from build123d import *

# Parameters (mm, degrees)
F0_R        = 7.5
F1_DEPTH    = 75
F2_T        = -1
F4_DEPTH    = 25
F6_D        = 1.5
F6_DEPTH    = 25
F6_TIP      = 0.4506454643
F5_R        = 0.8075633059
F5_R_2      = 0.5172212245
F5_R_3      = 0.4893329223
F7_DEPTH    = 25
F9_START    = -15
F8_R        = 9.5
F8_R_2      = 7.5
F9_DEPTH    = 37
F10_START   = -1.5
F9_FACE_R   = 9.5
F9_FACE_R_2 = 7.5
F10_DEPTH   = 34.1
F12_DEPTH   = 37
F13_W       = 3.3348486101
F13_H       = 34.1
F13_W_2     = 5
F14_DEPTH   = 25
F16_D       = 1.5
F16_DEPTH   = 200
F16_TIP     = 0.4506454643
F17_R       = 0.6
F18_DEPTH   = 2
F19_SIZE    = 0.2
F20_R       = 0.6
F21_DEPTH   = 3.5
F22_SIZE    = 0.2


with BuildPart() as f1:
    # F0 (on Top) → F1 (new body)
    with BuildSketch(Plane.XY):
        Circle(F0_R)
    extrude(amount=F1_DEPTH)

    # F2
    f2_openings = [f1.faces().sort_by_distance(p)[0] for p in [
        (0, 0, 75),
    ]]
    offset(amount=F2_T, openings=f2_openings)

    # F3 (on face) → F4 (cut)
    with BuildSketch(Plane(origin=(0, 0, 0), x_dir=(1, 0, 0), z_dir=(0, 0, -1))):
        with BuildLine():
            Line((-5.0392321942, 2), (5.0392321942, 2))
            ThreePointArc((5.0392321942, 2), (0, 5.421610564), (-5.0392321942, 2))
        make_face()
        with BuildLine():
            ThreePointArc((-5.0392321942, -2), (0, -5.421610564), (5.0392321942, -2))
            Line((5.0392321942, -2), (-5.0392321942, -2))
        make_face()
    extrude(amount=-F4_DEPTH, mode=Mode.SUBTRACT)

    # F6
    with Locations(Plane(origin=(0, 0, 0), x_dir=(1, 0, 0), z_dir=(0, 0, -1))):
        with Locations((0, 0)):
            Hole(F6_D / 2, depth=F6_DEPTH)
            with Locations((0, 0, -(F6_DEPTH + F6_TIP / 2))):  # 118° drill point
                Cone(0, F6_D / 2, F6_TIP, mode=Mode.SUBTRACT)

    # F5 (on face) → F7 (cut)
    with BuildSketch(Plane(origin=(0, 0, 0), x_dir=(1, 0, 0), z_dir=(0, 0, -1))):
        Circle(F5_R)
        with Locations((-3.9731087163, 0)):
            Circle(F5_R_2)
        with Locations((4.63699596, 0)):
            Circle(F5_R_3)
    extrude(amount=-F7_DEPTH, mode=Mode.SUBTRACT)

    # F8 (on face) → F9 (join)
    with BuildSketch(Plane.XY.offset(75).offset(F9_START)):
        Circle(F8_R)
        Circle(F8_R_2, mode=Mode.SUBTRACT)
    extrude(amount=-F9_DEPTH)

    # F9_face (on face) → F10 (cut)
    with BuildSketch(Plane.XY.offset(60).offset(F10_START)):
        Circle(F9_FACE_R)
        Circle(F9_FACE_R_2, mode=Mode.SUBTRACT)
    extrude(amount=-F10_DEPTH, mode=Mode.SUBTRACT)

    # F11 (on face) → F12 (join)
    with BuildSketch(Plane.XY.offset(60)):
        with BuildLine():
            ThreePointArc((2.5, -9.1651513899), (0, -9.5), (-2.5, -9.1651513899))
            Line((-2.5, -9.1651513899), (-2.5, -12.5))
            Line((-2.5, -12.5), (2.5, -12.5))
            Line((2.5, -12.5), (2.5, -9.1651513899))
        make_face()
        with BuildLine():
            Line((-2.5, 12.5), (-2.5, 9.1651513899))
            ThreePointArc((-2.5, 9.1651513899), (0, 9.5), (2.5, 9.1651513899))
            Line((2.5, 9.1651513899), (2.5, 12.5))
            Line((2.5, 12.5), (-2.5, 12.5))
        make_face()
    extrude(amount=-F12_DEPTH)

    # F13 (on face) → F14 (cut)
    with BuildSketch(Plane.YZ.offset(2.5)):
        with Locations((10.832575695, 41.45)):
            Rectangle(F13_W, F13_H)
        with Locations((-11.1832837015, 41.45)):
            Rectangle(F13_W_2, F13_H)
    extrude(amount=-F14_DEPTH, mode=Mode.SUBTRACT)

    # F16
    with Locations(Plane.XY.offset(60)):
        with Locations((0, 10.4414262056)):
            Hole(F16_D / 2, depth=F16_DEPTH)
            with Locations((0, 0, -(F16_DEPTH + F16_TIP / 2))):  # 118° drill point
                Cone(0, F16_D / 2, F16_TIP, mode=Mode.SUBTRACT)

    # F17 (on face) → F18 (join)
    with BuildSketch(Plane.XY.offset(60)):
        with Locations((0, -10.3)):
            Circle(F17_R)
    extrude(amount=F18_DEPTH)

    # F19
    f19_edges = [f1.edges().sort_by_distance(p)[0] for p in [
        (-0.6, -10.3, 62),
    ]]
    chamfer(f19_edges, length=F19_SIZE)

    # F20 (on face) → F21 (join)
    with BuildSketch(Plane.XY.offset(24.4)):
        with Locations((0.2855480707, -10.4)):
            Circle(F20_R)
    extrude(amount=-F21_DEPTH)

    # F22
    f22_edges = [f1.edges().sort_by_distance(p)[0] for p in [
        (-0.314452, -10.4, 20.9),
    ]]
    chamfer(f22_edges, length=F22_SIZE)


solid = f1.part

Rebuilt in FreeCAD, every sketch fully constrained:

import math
import FreeCAD as App
import Part
import Sketcher
from FreeCAD import Vector
Q = App.Units.Quantity


def edges_at(feature, points):
    """Names of the edges that pass closest to the given points."""
    edges = feature.Shape.Edges
    near = lambda p: min(range(len(edges)), key=lambda i: edges[i].distToShape(Part.Vertex(*p))[0])
    return sorted({f"Edge{near(p) + 1}" for p in points})


def faces_at(feature, points):
    """Names of the faces that lie closest to the given points."""
    faces = feature.Shape.Faces
    near = lambda p: min(range(len(faces)), key=lambda i: faces[i].distToShape(Part.Vertex(*p))[0])
    return sorted({f"Face{near(p) + 1}" for p in points})

doc = App.newDocument("Part")
body = doc.addObject("PartDesign::Body", "Body")

# Sketch on XY plane
sketch1 = doc.addObject("Sketcher::SketchObject", "Sketch")
body.addObject(sketch1)
sketch1.AttachmentSupport = (doc.XY_Plane, [""])
sketch1.MapMode = "FlatFace"
sketch1.addGeometry(Part.Circle(Vector(0, 0, 0), Vector(0, 0, 1), 8), False)
sketch1.addConstraint(Sketcher.Constraint("Coincident", 0, 3, -1, 1))
sketch1.addConstraint(Sketcher.Constraint("Diameter", 0, Q("15 mm")))
pad1 = doc.addObject("PartDesign::Pad", "Pad")
body.addObject(pad1)
pad1.Profile = sketch1
pad1.Length = 75
doc.recompute()

thickness = doc.addObject("PartDesign::Thickness", "Thickness")
body.addObject(thickness)
thickness.Base = (pad1, faces_at(pad1, [(0, 0, 75)]))
thickness.Value = 1
thickness.Reversed = True
thickness.Join = "Arc"

# Sketch on XY plane
sketch2 = doc.addObject("Sketcher::SketchObject", "Sketch001")
body.addObject(sketch2)
sketch2.AttachmentSupport = (doc.XY_Plane, [""])
sketch2.MapMode = "FlatFace"
sketch2.addGeometry(Part.LineSegment(Vector(-5, -2, 0), Vector(5, -2, 0)), False)
sketch2.addGeometry(Part.ArcOfCircle(Part.Circle(Vector(0, 0, 0), Vector(0, 0, 1), 5), math.radians(-158), math.radians(-22)), False)
sketch2.addGeometry(Part.ArcOfCircle(Part.Circle(Vector(0, 0, 0), Vector(0, 0, 1), 5), math.radians(22), math.radians(158)), False)
sketch2.addGeometry(Part.LineSegment(Vector(5, 2, 0), Vector(-5, 2, 0)), False)
sketch2.addConstraint(Sketcher.Constraint("Coincident", 0, 1, 1, 1))
sketch2.addConstraint(Sketcher.Constraint("Coincident", 1, 2, 0, 2))
sketch2.addConstraint(Sketcher.Constraint("Coincident", 2, 1, 3, 1))
sketch2.addConstraint(Sketcher.Constraint("Coincident", 3, 2, 2, 2))
sketch2.addConstraint(Sketcher.Constraint("Horizontal", 0))
sketch2.addConstraint(Sketcher.Constraint("Horizontal", 3))
sketch2.addConstraint(Sketcher.Constraint("Coincident", 1, 3, -1, 1))
sketch2.addConstraint(Sketcher.Constraint("Coincident", 2, 3, -1, 1))
sketch2.addConstraint(Sketcher.Constraint("Equal", 1, 2))
sketch2.addConstraint(Sketcher.Constraint("Vertical", 1, 2, 2, 1))
sketch2.addConstraint(Sketcher.Constraint("DistanceY", 0, 1, -1, 1, Q("2 mm")))
sketch2.addConstraint(Sketcher.Constraint("Radius", 1, Q("5.421611 mm")))
pocket1 = doc.addObject("PartDesign::Pocket", "Pocket")
body.addObject(pocket1)
pocket1.Profile = sketch2
pocket1.Length = 25
pocket1.Reversed = True

# Sketch on XY plane
sketch3 = doc.addObject("Sketcher::SketchObject", "Sketch002")
body.addObject(sketch3)
sketch3.AttachmentSupport = (doc.XY_Plane, [""])
sketch3.MapMode = "FlatFace"
sketch3.addGeometry(Part.Circle(Vector(0, 0, 0), Vector(0, 0, 1), 0.8), False)
sketch3.addConstraint(Sketcher.Constraint("Coincident", 0, 3, -1, 1))
sketch3.addConstraint(Sketcher.Constraint("Diameter", 0, Q("1.5 mm")))
doc.recompute()
hole = doc.addObject("PartDesign::Hole", "Hole")
body.addObject(hole)
hole.Profile = sketch3
hole.ThreadType = "None"
hole.Diameter = 1.5
hole.DepthType = "Dimension"
hole.Depth = 25
hole.DrillPoint = "Angled"
hole.DrillPointAngle = 118
hole.Reversed = True

# Sketch on XY plane
sketch4 = doc.addObject("Sketcher::SketchObject", "Sketch003")
body.addObject(sketch4)
sketch4.AttachmentSupport = (doc.XY_Plane, [""])
sketch4.MapMode = "FlatFace"
sketch4.addGeometry(Part.Circle(Vector(0, 0, 0), Vector(0, 0, 1), 0.81), False)
sketch4.addGeometry(Part.Circle(Vector(-3.97, 0, 0), Vector(0, 0, 1), 0.52), False)
sketch4.addGeometry(Part.Circle(Vector(4.64, 0, 0), Vector(0, 0, 1), 0.49), False)
sketch4.addConstraint(Sketcher.Constraint("Coincident", 0, 3, -1, 1))
sketch4.addConstraint(Sketcher.Constraint("PointOnObject", 1, 3, -1))
sketch4.addConstraint(Sketcher.Constraint("PointOnObject", 2, 3, -1))
sketch4.addConstraint(Sketcher.Constraint("Diameter", 0, Q("1.615127 mm")))
sketch4.addConstraint(Sketcher.Constraint("Diameter", 1, Q("1.034442 mm")))
sketch4.addConstraint(Sketcher.Constraint("Diameter", 2, Q("0.978666 mm")))
sketch4.addConstraint(Sketcher.Constraint("DistanceX", 1, 3, -1, 1, Q("3.973109 mm")))
sketch4.addConstraint(Sketcher.Constraint("DistanceX", -1, 1, 2, 3, Q("4.636996 mm")))
pocket2 = doc.addObject("PartDesign::Pocket", "Pocket001")
body.addObject(pocket2)
pocket2.Profile = sketch4
pocket2.Length = 25
pocket2.Reversed = True

# Sketch on XY plane
sketch5 = doc.addObject("Sketcher::SketchObject", "Sketch004")
body.addObject(sketch5)
sketch5.AttachmentSupport = (doc.XY_Plane, [""])
sketch5.MapMode = "FlatFace"
sketch5.AttachmentOffset = App.Placement(Vector(0, 0, 60), App.Rotation())
sketch5.addGeometry(Part.Circle(Vector(0, 0, 0), Vector(0, 0, 1), 10), False)
sketch5.addGeometry(Part.Circle(Vector(0, 0, 0), Vector(0, 0, 1), 8), False)
sketch5.addConstraint(Sketcher.Constraint("Coincident", 0, 3, -1, 1))
sketch5.addConstraint(Sketcher.Constraint("Coincident", 1, 3, -1, 1))
sketch5.addConstraint(Sketcher.Constraint("Diameter", 0, Q("19 mm")))
sketch5.addConstraint(Sketcher.Constraint("Diameter", 1, Q("15 mm")))
pad2 = doc.addObject("PartDesign::Pad", "Pad001")
body.addObject(pad2)
pad2.Profile = sketch5
pad2.Length = 37
pad2.Reversed = True

# Sketch on XY plane
sketch6 = doc.addObject("Sketcher::SketchObject", "Sketch005")
body.addObject(sketch6)
sketch6.AttachmentSupport = (doc.XY_Plane, [""])
sketch6.MapMode = "FlatFace"
sketch6.AttachmentOffset = App.Placement(Vector(0, 0, 58.5), App.Rotation())
sketch6.addGeometry(Part.Circle(Vector(0, 0, 0), Vector(0, 0, 1), 10), False)
sketch6.addGeometry(Part.Circle(Vector(0, 0, 0), Vector(0, 0, 1), 8), False)
sketch6.addConstraint(Sketcher.Constraint("Coincident", 0, 3, -1, 1))
sketch6.addConstraint(Sketcher.Constraint("Coincident", 1, 3, -1, 1))
sketch6.addConstraint(Sketcher.Constraint("Diameter", 0, Q("19 mm")))
sketch6.addConstraint(Sketcher.Constraint("Diameter", 1, Q("15 mm")))
pocket3 = doc.addObject("PartDesign::Pocket", "Pocket002")
body.addObject(pocket3)
pocket3.Profile = sketch6
pocket3.Length = 34.1

# Sketch on XY plane
sketch7 = doc.addObject("Sketcher::SketchObject", "Sketch006")
body.addObject(sketch7)
sketch7.AttachmentSupport = (doc.XY_Plane, [""])
sketch7.MapMode = "FlatFace"
sketch7.AttachmentOffset = App.Placement(Vector(0, 0, 60), App.Rotation())
sketch7.addGeometry(Part.ArcOfCircle(Part.Circle(Vector(0, 0, 0), Vector(0, 0, 1), 9.5), math.radians(-105), math.radians(-75)), False)
sketch7.addGeometry(Part.LineSegment(Vector(-2.5, -9.2, 0), Vector(-2.5, -12.5, 0)), False)
sketch7.addGeometry(Part.LineSegment(Vector(-2.5, -12.5, 0), Vector(2.5, -12.5, 0)), False)
sketch7.addGeometry(Part.LineSegment(Vector(2.5, -12.5, 0), Vector(2.5, -9.2, 0)), False)
sketch7.addGeometry(Part.LineSegment(Vector(-2.5, 12.5, 0), Vector(-2.5, 9.2, 0)), False)
sketch7.addGeometry(Part.ArcOfCircle(Part.Circle(Vector(0, 0, 0), Vector(0, 0, 1), 9.5), math.radians(75), math.radians(105)), False)
sketch7.addGeometry(Part.LineSegment(Vector(2.5, 9.2, 0), Vector(2.5, 12.5, 0)), False)
sketch7.addGeometry(Part.LineSegment(Vector(2.5, 12.5, 0), Vector(-2.5, 12.5, 0)), False)
sketch7.addConstraint(Sketcher.Constraint("Coincident", 0, 1, 1, 1))
sketch7.addConstraint(Sketcher.Constraint("Coincident", 1, 2, 2, 1))
sketch7.addConstraint(Sketcher.Constraint("Coincident", 2, 2, 3, 1))
sketch7.addConstraint(Sketcher.Constraint("Coincident", 3, 2, 0, 2))
sketch7.addConstraint(Sketcher.Constraint("Coincident", 4, 2, 5, 2))
sketch7.addConstraint(Sketcher.Constraint("Coincident", 5, 1, 6, 1))
sketch7.addConstraint(Sketcher.Constraint("Coincident", 6, 2, 7, 1))
sketch7.addConstraint(Sketcher.Constraint("Coincident", 7, 2, 4, 1))
sketch7.addConstraint(Sketcher.Constraint("Vertical", 1))
sketch7.addConstraint(Sketcher.Constraint("Horizontal", 2))
sketch7.addConstraint(Sketcher.Constraint("Vertical", 3))
sketch7.addConstraint(Sketcher.Constraint("Vertical", 4))
sketch7.addConstraint(Sketcher.Constraint("Vertical", 6))
sketch7.addConstraint(Sketcher.Constraint("Horizontal", 7))
sketch7.addConstraint(Sketcher.Constraint("Coincident", 0, 3, -1, 1))
sketch7.addConstraint(Sketcher.Constraint("Coincident", 5, 3, -1, 1))
sketch7.addConstraint(Sketcher.Constraint("Equal", 0, 5))
sketch7.addConstraint(Sketcher.Constraint("Symmetric", 1, 2, 6, 2, -1, 1))
sketch7.addConstraint(Sketcher.Constraint("Horizontal", 0, 1, 3, 2))
sketch7.addConstraint(Sketcher.Constraint("Horizontal", 4, 2, 5, 1))
sketch7.addConstraint(Sketcher.Constraint("Radius", 0, Q("9.5 mm")))
sketch7.addConstraint(Sketcher.Constraint("DistanceX", 2, 1, 2, 2, Q("5 mm")))
sketch7.addConstraint(Sketcher.Constraint("DistanceY", 1, 2, -1, 1, Q("12.5 mm")))
pad3 = doc.addObject("PartDesign::Pad", "Pad002")
body.addObject(pad3)
pad3.Profile = sketch7
pad3.Length = 37
pad3.Reversed = True

# Sketch on YZ plane
sketch8 = doc.addObject("Sketcher::SketchObject", "Sketch007")
body.addObject(sketch8)
sketch8.AttachmentSupport = (doc.YZ_Plane, [""])
sketch8.MapMode = "FlatFace"
sketch8.AttachmentOffset = App.Placement(Vector(0, 0, 2.5), App.Rotation())
sketch8.addGeometry(Part.LineSegment(Vector(9.2, 58.5, 0), Vector(9.2, 24.4, 0)), False)
sketch8.addGeometry(Part.LineSegment(Vector(9.2, 24.4, 0), Vector(12.5, 24.4, 0)), False)
sketch8.addGeometry(Part.LineSegment(Vector(12.5, 24.4, 0), Vector(12.5, 58.5, 0)), False)
sketch8.addGeometry(Part.LineSegment(Vector(12.5, 58.5, 0), Vector(9.2, 58.5, 0)), False)
sketch8.addGeometry(Part.LineSegment(Vector(-13.7, 58.5, 0), Vector(-13.7, 24.4, 0)), False)
sketch8.addGeometry(Part.LineSegment(Vector(-13.7, 24.4, 0), Vector(-8.7, 24.4, 0)), False)
sketch8.addGeometry(Part.LineSegment(Vector(-8.7, 24.4, 0), Vector(-8.7, 58.5, 0)), False)
sketch8.addGeometry(Part.LineSegment(Vector(-8.7, 58.5, 0), Vector(-13.7, 58.5, 0)), False)
sketch8.addConstraint(Sketcher.Constraint("Coincident", 0, 2, 1, 1))
sketch8.addConstraint(Sketcher.Constraint("Coincident", 1, 2, 2, 1))
sketch8.addConstraint(Sketcher.Constraint("Coincident", 2, 2, 3, 1))
sketch8.addConstraint(Sketcher.Constraint("Coincident", 3, 2, 0, 1))
sketch8.addConstraint(Sketcher.Constraint("Coincident", 4, 2, 5, 1))
sketch8.addConstraint(Sketcher.Constraint("Coincident", 5, 2, 6, 1))
sketch8.addConstraint(Sketcher.Constraint("Coincident", 6, 2, 7, 1))
sketch8.addConstraint(Sketcher.Constraint("Coincident", 7, 2, 4, 1))
sketch8.addConstraint(Sketcher.Constraint("Vertical", 0))
sketch8.addConstraint(Sketcher.Constraint("Horizontal", 1))
sketch8.addConstraint(Sketcher.Constraint("Vertical", 2))
sketch8.addConstraint(Sketcher.Constraint("Horizontal", 3))
sketch8.addConstraint(Sketcher.Constraint("Vertical", 4))
sketch8.addConstraint(Sketcher.Constraint("Horizontal", 5))
sketch8.addConstraint(Sketcher.Constraint("Vertical", 6))
sketch8.addConstraint(Sketcher.Constraint("Horizontal", 7))
sketch8.addConstraint(Sketcher.Constraint("Horizontal", 1, 2, 4, 2))
sketch8.addConstraint(Sketcher.Constraint("Horizontal", 3, 2, 6, 2))
sketch8.addConstraint(Sketcher.Constraint("DistanceX", 5, 1, 5, 2, Q("5 mm")))
sketch8.addConstraint(Sketcher.Constraint("DistanceY", 0, 2, 0, 1, Q("34.1 mm")))
sketch8.addConstraint(Sketcher.Constraint("DistanceY", -1, 1, 0, 2, Q("24.4 mm")))
sketch8.addConstraint(Sketcher.Constraint("DistanceX", -1, 1, 1, 2, Q("12.5 mm")))
sketch8.addConstraint(Sketcher.Constraint("DistanceX", 1, 1, 1, 2, Q("3.334849 mm")))
sketch8.addConstraint(Sketcher.Constraint("DistanceX", 4, 2, -1, 1, Q("13.683284 mm")))
pocket4 = doc.addObject("PartDesign::Pocket", "Pocket003")
body.addObject(pocket4)
pocket4.Profile = sketch8
pocket4.Length = 25

# Sketch on XY plane
sketch9 = doc.addObject("Sketcher::SketchObject", "Sketch008")
body.addObject(sketch9)
sketch9.AttachmentSupport = (doc.XY_Plane, [""])
sketch9.MapMode = "FlatFace"
sketch9.AttachmentOffset = App.Placement(Vector(0, 0, 60), App.Rotation())
sketch9.addGeometry(Part.Circle(Vector(0, 10.4, 0), Vector(0, 0, 1), 0.8), False)
sketch9.addConstraint(Sketcher.Constraint("PointOnObject", 0, 3, -2))
sketch9.addConstraint(Sketcher.Constraint("Diameter", 0, Q("1.5 mm")))
sketch9.addConstraint(Sketcher.Constraint("DistanceY", -1, 1, 0, 3, Q("10.441426 mm")))
doc.recompute()
hole2 = doc.addObject("PartDesign::Hole", "Hole001")
body.addObject(hole2)
hole2.Profile = sketch9
hole2.ThreadType = "None"
hole2.Diameter = 1.5
hole2.DepthType = "Dimension"
hole2.Depth = 200
hole2.DrillPoint = "Angled"
hole2.DrillPointAngle = 118

# Sketch on XY plane
sketch10 = doc.addObject("Sketcher::SketchObject", "Sketch009")
body.addObject(sketch10)
sketch10.AttachmentSupport = (doc.XY_Plane, [""])
sketch10.MapMode = "FlatFace"
sketch10.AttachmentOffset = App.Placement(Vector(0, 0, 60), App.Rotation())
sketch10.addGeometry(Part.Circle(Vector(0, -10.3, 0), Vector(0, 0, 1), 0.6), False)
sketch10.addConstraint(Sketcher.Constraint("PointOnObject", 0, 3, -2))
sketch10.addConstraint(Sketcher.Constraint("Diameter", 0, Q("1.2 mm")))
sketch10.addConstraint(Sketcher.Constraint("DistanceY", 0, 3, -1, 1, Q("10.3 mm")))
pad4 = doc.addObject("PartDesign::Pad", "Pad003")
body.addObject(pad4)
pad4.Profile = sketch10
pad4.Length = 2
doc.recompute()

chamfer = doc.addObject("PartDesign::Chamfer", "Chamfer")
body.addObject(chamfer)
chamfer.Base = (pad4, edges_at(pad4, [(-0.6, -10.3, 62)]))
chamfer.Size = 0.2

# Sketch on XY plane
sketch11 = doc.addObject("Sketcher::SketchObject", "Sketch010")
body.addObject(sketch11)
sketch11.AttachmentSupport = (doc.XY_Plane, [""])
sketch11.MapMode = "FlatFace"
sketch11.AttachmentOffset = App.Placement(Vector(0, 0, 24.4), App.Rotation())
sketch11.addGeometry(Part.Circle(Vector(0.3, -10.4, 0), Vector(0, 0, 1), 0.6), False)
sketch11.addConstraint(Sketcher.Constraint("Diameter", 0, Q("1.2 mm")))
sketch11.addConstraint(Sketcher.Constraint("DistanceY", 0, 3, -1, 1, Q("10.4 mm")))
sketch11.addConstraint(Sketcher.Constraint("DistanceX", -1, 1, 0, 3, Q("0.285548 mm")))
pad5 = doc.addObject("PartDesign::Pad", "Pad004")
body.addObject(pad5)
pad5.Profile = sketch11
pad5.Length = 3.5
pad5.Reversed = True
doc.recompute()

chamfer2 = doc.addObject("PartDesign::Chamfer", "Chamfer001")
body.addObject(chamfer2)
chamfer2.Base = (pad5, edges_at(pad5, [(-0.314, -10.4, 20.9)]))
chamfer2.Size = 0.2

doc.recompute()
